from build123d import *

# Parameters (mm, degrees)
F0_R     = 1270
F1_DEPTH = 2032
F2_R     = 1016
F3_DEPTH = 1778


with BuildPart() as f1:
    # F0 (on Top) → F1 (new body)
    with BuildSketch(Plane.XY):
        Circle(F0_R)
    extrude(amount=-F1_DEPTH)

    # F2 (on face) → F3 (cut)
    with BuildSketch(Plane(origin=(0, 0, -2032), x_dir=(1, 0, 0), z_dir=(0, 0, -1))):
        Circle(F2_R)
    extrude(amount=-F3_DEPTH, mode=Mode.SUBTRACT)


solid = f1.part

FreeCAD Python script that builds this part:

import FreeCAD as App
import Part
import Sketcher
Q = App.Units.Quantity

doc = App.newDocument("Part")
body = doc.addObject("PartDesign::Body", "Body")

sketch1 = body.newObject("Sketcher::SketchObject", "Sketch")
sketch1.AttachmentSupport = (doc.getObject("XY_Plane"), [""])
sketch1.MapMode = "FlatFace"
sketch1.addGeometry(Part.Circle(App.Vector(0, 0, 0), App.Vector(0, 0, 1), 1270), False)
sketch1.addConstraint(Sketcher.Constraint("Coincident", 0, 3, -1, 1))
sketch1.addConstraint(Sketcher.Constraint("Diameter", 0, Q("100 in")))
pad1 = body.newObject("PartDesign::Pad", "Pad")
pad1.Profile = sketch1
pad1.Length = Q("80 in")
pad1.Reversed = True

sketch2 = body.newObject("Sketcher::SketchObject", "Sketch001")
sketch2.AttachmentSupport = (doc.getObject("XY_Plane"), [""])
sketch2.MapMode = "FlatFace"
sketch2.AttachmentOffset = App.Placement(App.Vector(0, 0, -80 * 25.4), App.Rotation())
sketch2.addGeometry(Part.Circle(App.Vector(0, 0, 0), App.Vector(0, 0, 1), 1016), False)
sketch2.addConstraint(Sketcher.Constraint("Coincident", 0, 3, -1, 1))
sketch2.addConstraint(Sketcher.Constraint("Diameter", 0, Q("80 in")))
pocket1 = body.newObject("PartDesign::Pocket", "Pocket")
pocket1.Profile = sketch2
pocket1.Length = Q("70 in")
pocket1.Reversed = True

doc.recompute()
